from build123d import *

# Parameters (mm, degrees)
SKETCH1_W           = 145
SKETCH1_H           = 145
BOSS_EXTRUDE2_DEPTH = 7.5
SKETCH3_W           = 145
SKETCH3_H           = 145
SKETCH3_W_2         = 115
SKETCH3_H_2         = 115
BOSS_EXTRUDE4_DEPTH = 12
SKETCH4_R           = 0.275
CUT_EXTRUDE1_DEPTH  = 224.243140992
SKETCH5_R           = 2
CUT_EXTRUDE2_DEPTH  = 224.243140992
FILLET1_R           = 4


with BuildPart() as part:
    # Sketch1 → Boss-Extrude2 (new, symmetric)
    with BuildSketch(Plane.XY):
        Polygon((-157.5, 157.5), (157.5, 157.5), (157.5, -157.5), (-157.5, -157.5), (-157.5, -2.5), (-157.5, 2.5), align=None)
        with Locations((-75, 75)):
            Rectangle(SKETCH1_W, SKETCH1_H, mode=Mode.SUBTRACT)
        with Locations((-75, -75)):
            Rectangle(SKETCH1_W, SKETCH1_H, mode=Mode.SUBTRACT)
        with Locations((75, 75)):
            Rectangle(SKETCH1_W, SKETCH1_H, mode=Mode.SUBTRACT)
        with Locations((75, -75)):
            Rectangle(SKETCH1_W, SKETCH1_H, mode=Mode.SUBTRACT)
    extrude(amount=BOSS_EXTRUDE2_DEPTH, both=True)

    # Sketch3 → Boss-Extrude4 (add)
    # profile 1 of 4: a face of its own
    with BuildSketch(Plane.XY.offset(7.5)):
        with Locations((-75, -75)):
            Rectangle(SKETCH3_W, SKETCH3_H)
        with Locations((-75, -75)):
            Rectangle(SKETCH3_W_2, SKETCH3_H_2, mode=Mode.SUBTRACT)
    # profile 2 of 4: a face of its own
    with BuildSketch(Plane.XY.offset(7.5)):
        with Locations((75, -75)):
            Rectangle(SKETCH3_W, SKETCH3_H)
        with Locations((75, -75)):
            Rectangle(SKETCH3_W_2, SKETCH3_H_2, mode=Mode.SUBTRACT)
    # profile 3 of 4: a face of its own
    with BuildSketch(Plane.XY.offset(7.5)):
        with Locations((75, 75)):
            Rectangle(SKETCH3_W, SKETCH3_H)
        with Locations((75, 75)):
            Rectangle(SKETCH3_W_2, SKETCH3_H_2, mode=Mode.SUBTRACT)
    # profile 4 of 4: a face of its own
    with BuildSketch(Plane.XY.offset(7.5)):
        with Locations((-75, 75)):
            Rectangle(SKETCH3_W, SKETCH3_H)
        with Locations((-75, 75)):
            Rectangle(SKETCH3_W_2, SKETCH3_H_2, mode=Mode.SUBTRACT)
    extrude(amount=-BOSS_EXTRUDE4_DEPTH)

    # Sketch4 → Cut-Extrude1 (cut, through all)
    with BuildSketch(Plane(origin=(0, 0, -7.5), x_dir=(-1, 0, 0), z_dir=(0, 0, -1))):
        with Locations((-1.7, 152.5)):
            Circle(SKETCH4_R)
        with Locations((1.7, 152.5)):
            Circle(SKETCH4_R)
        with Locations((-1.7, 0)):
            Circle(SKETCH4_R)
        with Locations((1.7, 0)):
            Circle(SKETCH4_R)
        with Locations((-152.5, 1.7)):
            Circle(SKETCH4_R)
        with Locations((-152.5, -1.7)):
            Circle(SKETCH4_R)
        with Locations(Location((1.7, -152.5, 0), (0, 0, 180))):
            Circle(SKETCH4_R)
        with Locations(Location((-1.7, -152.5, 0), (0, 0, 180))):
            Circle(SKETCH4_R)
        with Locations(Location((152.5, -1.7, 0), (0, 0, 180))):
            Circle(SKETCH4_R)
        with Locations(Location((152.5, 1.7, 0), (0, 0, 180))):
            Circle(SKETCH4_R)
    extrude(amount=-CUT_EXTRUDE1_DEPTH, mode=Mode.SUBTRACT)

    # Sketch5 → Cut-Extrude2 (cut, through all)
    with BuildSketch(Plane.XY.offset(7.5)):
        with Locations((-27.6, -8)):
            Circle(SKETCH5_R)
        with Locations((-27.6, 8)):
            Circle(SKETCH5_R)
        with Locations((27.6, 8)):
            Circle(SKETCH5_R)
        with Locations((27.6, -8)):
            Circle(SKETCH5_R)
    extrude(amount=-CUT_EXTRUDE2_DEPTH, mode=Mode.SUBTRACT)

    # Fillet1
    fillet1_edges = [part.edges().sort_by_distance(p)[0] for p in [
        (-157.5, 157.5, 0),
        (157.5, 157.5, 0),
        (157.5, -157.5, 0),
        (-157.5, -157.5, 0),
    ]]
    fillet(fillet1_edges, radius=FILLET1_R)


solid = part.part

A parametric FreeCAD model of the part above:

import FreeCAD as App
import Part
import Sketcher
from FreeCAD import Vector


def edges_at(feature, points):
    """Names of the edges that pass closest to the given points."""
    edges = feature.Shape.Edges
    near = lambda p: min(range(len(edges)), key=lambda i: edges[i].distToShape(Part.Vertex(*p))[0])
    return sorted({f"Edge{near(p) + 1}" for p in points})


def add_polygon(sketch, points):
    """Adds a closed chain of lines whose ends are joined by coincident constraints."""
    first, n = sketch.GeometryCount, len(points)
    for a, b in zip(points, points[1:] + points[:1]):
        sketch.addGeometry(Part.LineSegment(App.Vector(*a, 0), App.Vector(*b, 0)), False)
    for i in range(n):
        sketch.addConstraint(Sketcher.Constraint("Coincident", first + i, 2, first + (i + 1) % n, 1))

doc = App.newDocument("Part")
body = doc.addObject("PartDesign::Body", "Body")

# Sketch on XY plane
sketch1 = body.newObject("Sketcher::SketchObject", "Sketch")
sketch1.AttachmentSupport = (doc.getObject("XY_Plane"), [""])
sketch1.MapMode = "FlatFace"
add_polygon(sketch1, [(158, 158), (-158, 158), (-158, -158), (158, -158)])  # lines 0-3
add_polygon(sketch1, [(2, -148), (2, -2), (148, -2), (148, -148)])  # lines 4-7
add_polygon(sketch1, [(-148, -148), (-148, -2), (-2, -2), (-2, -148)])  # lines 8-11
add_polygon(sketch1, [(2, 2), (2, 148), (148, 148), (148, 2)])  # lines 12-15
add_polygon(sketch1, [(-148, 2), (-148, 148), (-2, 148), (-2, 2)])  # lines 16-19
sketch1.addConstraint([
    Sketcher.Constraint("Horizontal", 0),
    Sketcher.Constraint("Vertical", 1),
    Sketcher.Constraint("Horizontal", 2),
    Sketcher.Constraint("Vertical", 3),
    Sketcher.Constraint("Vertical", 4),
    Sketcher.Constraint("Horizontal", 5),
    Sketcher.Constraint("Vertical", 6),
    Sketcher.Constraint("Horizontal", 7),
    Sketcher.Constraint("Vertical", 8),
    Sketcher.Constraint("Horizontal", 9),
    Sketcher.Constraint("Vertical", 10),
    Sketcher.Constraint("Horizontal", 11),
    Sketcher.Constraint("Vertical", 12),
    Sketcher.Constraint("Horizontal", 13),
    Sketcher.Constraint("Vertical", 14),
    Sketcher.Constraint("Horizontal", 15),
    Sketcher.Constraint("Vertical", 16),
    Sketcher.Constraint("Horizontal", 17),
    Sketcher.Constraint("Vertical", 18),
    Sketcher.Constraint("Horizontal", 19),
    Sketcher.Constraint("Symmetric", 0, 2, 2, 2, -1, 1),
    Sketcher.Constraint("Symmetric", 10, 2, 12, 2, -1, 1),
    Sketcher.Constraint("Symmetric", 8, 2, 14, 2, -1, 1),
    Sketcher.Constraint("Symmetric", 6, 2, 16, 2, -1, 1),
    Sketcher.Constraint("Symmetric", 4, 2, 18, 2, -1, 1),
    Sketcher.Constraint("Symmetric", 5, 2, 8, 2, -2),
    Sketcher.Constraint("Symmetric", 7, 2, 10, 2, -2),
    Sketcher.Constraint("Equal", 2, 1),
    Sketcher.Constraint("Equal", 19, 4),
    Sketcher.Constraint("DistanceX", 0, 2, 0, 1, 315.0),
    Sketcher.Constraint("DistanceX", 5, 1, 5, 2, 145.0),
    Sketcher.Constraint("DistanceX", 4, 2, 2, 2, 155.0),
    Sketcher.Constraint("DistanceY", 2, 2, 4, 2, 155.0),
])
pad1 = body.newObject("PartDesign::Pad", "Pad")
pad1.Profile = sketch1
pad1.Length = 15
pad1.Midplane = True

# Sketch on XY plane
sketch2 = body.newObject("Sketcher::SketchObject", "Sketch001")
sketch2.AttachmentSupport = (doc.getObject("XY_Plane"), [""])
sketch2.MapMode = "FlatFace"
sketch2.AttachmentOffset = App.Placement(Vector(0, 0, 7.5), App.Rotation())
add_polygon(sketch2, [(-148, -2), (-148, -148), (-2, -148), (-2, -2)])  # lines 0-3
add_polygon(sketch2, [(-18, -132), (-132, -132), (-132, -18), (-18, -18)])  # lines 4-7
add_polygon(sketch2, [(2, -2), (2, -148), (148, -148), (148, -2)])  # lines 8-11
add_polygon(sketch2, [(132, -132), (18, -132), (18, -18), (132, -18)])  # lines 12-15
add_polygon(sketch2, [(2, 148), (2, 2), (148, 2), (148, 148)])  # lines 16-19
add_polygon(sketch2, [(132, 18), (18, 18), (18, 132), (132, 132)])  # lines 20-23
add_polygon(sketch2, [(-148, 148), (-148, 2), (-2, 2), (-2, 148)])  # lines 24-27
add_polygon(sketch2, [(-18, 18), (-132, 18), (-132, 132), (-18, 132)])  # lines 28-31
sketch2.addConstraint([
    Sketcher.Constraint("Vertical", 0),
    Sketcher.Constraint("Horizontal", 1),
    Sketcher.Constraint("Vertical", 2),
    Sketcher.Constraint("Horizontal", 3),
    Sketcher.Constraint("Horizontal", 4),
    Sketcher.Constraint("Vertical", 5),
    Sketcher.Constraint("Horizontal", 6),
    Sketcher.Constraint("Vertical", 7),
    Sketcher.Constraint("Vertical", 8),
    Sketcher.Constraint("Horizontal", 9),
    Sketcher.Constraint("Vertical", 10),
    Sketcher.Constraint("Horizontal", 11),
    Sketcher.Constraint("Horizontal", 12),
    Sketcher.Constraint("Vertical", 13),
    Sketcher.Constraint("Horizontal", 14),
    Sketcher.Constraint("Vertical", 15),
    Sketcher.Constraint("Vertical", 16),
    Sketcher.Constraint("Horizontal", 17),
    Sketcher.Constraint("Vertical", 18),
    Sketcher.Constraint("Horizontal", 19),
    Sketcher.Constraint("Horizontal", 20),
    Sketcher.Constraint("Vertical", 21),
    Sketcher.Constraint("Horizontal", 22),
    Sketcher.Constraint("Vertical", 23),
    Sketcher.Constraint("Vertical", 24),
    Sketcher.Constraint("Horizontal", 25),
    Sketcher.Constraint("Vertical", 26),
    Sketcher.Constraint("Horizontal", 27),
    Sketcher.Constraint("Horizontal", 28),
    Sketcher.Constraint("Vertical", 29),
    Sketcher.Constraint("Horizontal", 30),
    Sketcher.Constraint("Vertical", 31),
    Sketcher.Constraint("Symmetric", 2, 2, 16, 2, -1, 1),
    Sketcher.Constraint("Symmetric", 0, 2, 18, 2, -1, 1),
    Sketcher.Constraint("Symmetric", 6, 2, 20, 2, -1, 1),
    Sketcher.Constraint("Symmetric", 4, 2, 22, 2, -1, 1),
    Sketcher.Constraint("Symmetric", 10, 2, 24, 2, -1, 1),
    Sketcher.Constraint("Symmetric", 8, 2, 26, 2, -1, 1),
    Sketcher.Constraint("Symmetric", 14, 2, 28, 2, -1, 1),
    Sketcher.Constraint("Symmetric", 12, 2, 30, 2, -1, 1),
    Sketcher.Constraint("Symmetric", 1, 2, 8, 2, -2),
    Sketcher.Constraint("Symmetric", 3, 2, 10, 2, -2),
    Sketcher.Constraint("Symmetric", 7, 2, 12, 2, -2),
    Sketcher.Constraint("Symmetric", 5, 2, 14, 2, -2),
    Sketcher.Constraint("Equal", 27, 0),
    Sketcher.Constraint("Equal", 30, 5),
    Sketcher.Constraint("DistanceX", 1, 1, 1, 2, 145.0),
    Sketcher.Constraint("DistanceX", 4, 2, 4, 1, 115.0),
    Sketcher.Constraint("DistanceX", 0, 2, 4, 2, 15.0),
    Sketcher.Constraint("DistanceY", 0, 2, 4, 2, 15.0),
    Sketcher.Constraint("DistanceX", 1, 2, 8, 2, 5.0),
    Sketcher.Constraint("DistanceY", 11, 2, 16, 2, 5.0),
])
pad2 = body.newObject("PartDesign::Pad", "Pad001")
pad2.Profile = sketch2
pad2.Length = 12
pad2.Reversed = True

# Sketch on XY plane
sketch3 = body.newObject("Sketcher::SketchObject", "Sketch002")
sketch3.AttachmentSupport = (doc.getObject("XY_Plane"), [""])
sketch3.MapMode = "FlatFace"
sketch3.AttachmentOffset = App.Placement(Vector(0, 0, -7.5), App.Rotation())
sketch3.addGeometry([
    Part.Circle(Vector(1.7, 152.5, 0), Vector(0, 0, 1), 0.28),  # 0
    Part.Circle(Vector(-1.7, 152.5, 0), Vector(0, 0, 1), 0.28),  # 1
    Part.Circle(Vector(1.7, 0, 0), Vector(0, 0, 1), 0.28),  # 2
    Part.Circle(Vector(-1.7, 0, 0), Vector(0, 0, 1), 0.28),  # 3
    Part.Circle(Vector(152.5, 1.7, 0), Vector(0, 0, 1), 0.28),  # 4
    Part.Circle(Vector(152.5, -1.7, 0), Vector(0, 0, 1), 0.28),  # 5
    Part.Circle(Vector(-1.7, -152.5, 0), Vector(0, 0, 1), 0.28),  # 6
    Part.Circle(Vector(1.7, -152.5, 0), Vector(0, 0, 1), 0.28),  # 7
    Part.Circle(Vector(-152.5, -1.7, 0), Vector(0, 0, 1), 0.28),  # 8
    Part.Circle(Vector(-152.5, 1.7, 0), Vector(0, 0, 1), 0.28),  # 9
], False)
sketch3.addConstraint([
    Sketcher.Constraint("Equal", 0, 1),
    Sketcher.Constraint("Equal", 1, 2),
    Sketcher.Constraint("Equal", 2, 3),
    Sketcher.Constraint("Equal", 3, 4),
    Sketcher.Constraint("Equal", 4, 5),
    Sketcher.Constraint("Equal", 5, 6),
    Sketcher.Constraint("Equal", 6, 7),
    Sketcher.Constraint("Equal", 7, 8),
    Sketcher.Constraint("Equal", 8, 9),
    Sketcher.Constraint("Symmetric", 2, 3, 3, 3, -1, 1),
    Sketcher.Constraint("Symmetric", 0, 3, 6, 3, -1, 1),
    Sketcher.Constraint("Symmetric", 1, 3, 7, 3, -1, 1),
    Sketcher.Constraint("Symmetric", 4, 3, 8, 3, -1, 1),
    Sketcher.Constraint("Symmetric", 5, 3, 9, 3, -1, 1),
    Sketcher.Constraint("Symmetric", 0, 3, 1, 3, -2),
    Sketcher.Constraint("Symmetric", 5, 3, 8, 3, -2),
    Sketcher.Constraint("PointOnObject", 2, 3, -1),
    Sketcher.Constraint("Vertical", 0, 3, 2, 3),
    Sketcher.Constraint("Diameter", 0, 0.55),
    Sketcher.Constraint("DistanceY", 6, 3, 1, 3, 305.0),
    Sketcher.Constraint("DistanceX", -1, 1, 0, 3, 1.7),
    Sketcher.Constraint("DistanceX", -1, 1, 4, 3, 152.5),
    Sketcher.Constraint("DistanceY", -1, 1, 4, 3, 1.7),
])
pocket1 = body.newObject("PartDesign::Pocket", "Pocket")
pocket1.Profile = sketch3
pocket1.Type = "ThroughAll"
pocket1.Reversed = True

# Sketch on XY plane
sketch4 = body.newObject("Sketcher::SketchObject", "Sketch003")
sketch4.AttachmentSupport = (doc.getObject("XY_Plane"), [""])
sketch4.MapMode = "FlatFace"
sketch4.AttachmentOffset = App.Placement(Vector(0, 0, 7.5), App.Rotation())
sketch4.addGeometry([
    Part.Circle(Vector(-27.6, -8, 0), Vector(0, 0, 1), 2),
    Part.Circle(Vector(-27.6, 8, 0), Vector(0, 0, 1), 2),
    Part.Circle(Vector(27.6, 8, 0), Vector(0, 0, 1), 2),
    Part.Circle(Vector(27.6, -8, 0), Vector(0, 0, 1), 2),
], False)
sketch4.addConstraint([
    Sketcher.Constraint("Equal", 0, 1),
    Sketcher.Constraint("Equal", 1, 2),
    Sketcher.Constraint("Equal", 2, 3),
    Sketcher.Constraint("Symmetric", 0, 3, 2, 3, -1, 1),
    Sketcher.Constraint("Symmetric", 1, 3, 3, 3, -1, 1),
    Sketcher.Constraint("Symmetric", 1, 3, 2, 3, -2),
    Sketcher.Constraint("Diameter", 0, 4.0),
    Sketcher.Constraint("DistanceY", 0, 3, -1, 1, 8.0),
    Sketcher.Constraint("DistanceX", 0, 3, -1, 1, 27.6),
])
pocket2 = body.newObject("PartDesign::Pocket", "Pocket001")
pocket2.Profile = sketch4
pocket2.Type = "ThroughAll"
doc.recompute()

fillet = body.newObject("PartDesign::Fillet", "Fillet")
fillet.Base = (pocket2, edges_at(pocket2, [
    (-157.5, 157.5, 0),
    (157.5, 157.5, 0),
    (157.5, -157.5, 0),
    (-157.5, -157.5, 0),
]))
fillet.Radius = 4

doc.recompute()
